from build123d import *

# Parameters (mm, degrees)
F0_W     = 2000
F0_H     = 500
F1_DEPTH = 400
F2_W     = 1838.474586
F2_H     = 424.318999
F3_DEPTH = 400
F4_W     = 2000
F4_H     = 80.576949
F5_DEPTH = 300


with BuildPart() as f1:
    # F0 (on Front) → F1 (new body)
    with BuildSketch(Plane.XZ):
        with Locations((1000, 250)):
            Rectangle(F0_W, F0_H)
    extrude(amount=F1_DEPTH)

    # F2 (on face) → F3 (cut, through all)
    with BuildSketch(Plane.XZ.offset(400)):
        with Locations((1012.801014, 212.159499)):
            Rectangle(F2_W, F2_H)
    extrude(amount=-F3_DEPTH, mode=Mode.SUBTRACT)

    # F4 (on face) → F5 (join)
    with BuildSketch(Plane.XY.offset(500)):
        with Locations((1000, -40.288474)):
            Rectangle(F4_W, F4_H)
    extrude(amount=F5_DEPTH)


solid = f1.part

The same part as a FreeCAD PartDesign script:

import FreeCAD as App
import Part
import Sketcher

V = App.Vector
Q = App.Units.Quantity


def add_polygon(sketch, points):
    """Adds a closed chain of lines whose ends are joined by coincident constraints."""
    first, n = sketch.GeometryCount, len(points)
    for a, b in zip(points, points[1:] + points[:1]):
        sketch.addGeometry(Part.LineSegment(App.Vector(*a, 0), App.Vector(*b, 0)), False)
    for i in range(n):
        sketch.addConstraint(Sketcher.Constraint("Coincident", first + i, 2, first + (i + 1) % n, 1))

doc = App.newDocument("Part")
params = doc.addObject("Spreadsheet::Sheet", "Params")
for row, (alias, value) in enumerate([
    ("sketch1_width", "2000 mm"),
    ("sketch1_height", "500 mm"),
    ("pad1_length", "400 mm"),
    ("sketch3_width", "2000 mm"),
    ("pad2_length", "300 mm"),
], start=1):
    params.set(f"A{row}", alias)
    params.set(f"B{row}", "=" + value)
    params.setAlias(f"B{row}", alias)

body = doc.addObject("PartDesign::Body", "Body")

sketch1 = body.newObject("Sketcher::SketchObject", "Sketch")
sketch1.AttachmentSupport = (doc.getObject("XZ_Plane"), [""])
sketch1.MapMode = "FlatFace"
add_polygon(sketch1, [(0, 500), (0, 0), (2000, 0), (2000, 500)])
sketch1.addConstraint([
    Sketcher.Constraint("Vertical", 0),
    Sketcher.Constraint("Horizontal", 1),
    Sketcher.Constraint("Vertical", 2),
    Sketcher.Constraint("Horizontal", 3),
    Sketcher.Constraint("Coincident", 0, 2, -1, 1),
    Sketcher.Constraint("DistanceX", 1, 1, 1, 2, Q("2000 mm")),
    Sketcher.Constraint("DistanceY", 0, 2, 0, 1, Q("500 mm")),
])
sketch1.setExpression("Constraints[9]", "Params.sketch1_width")
sketch1.setExpression("Constraints[10]", "Params.sketch1_height")
pad1 = body.newObject("PartDesign::Pad", "Pad")
pad1.Profile = sketch1
pad1.setExpression("Length", "Params.pad1_length")

sketch2 = body.newObject("Sketcher::SketchObject", "Sketch001")
sketch2.AttachmentSupport = (doc.getObject("XZ_Plane"), [""])
sketch2.MapMode = "FlatFace"
sketch2.AttachmentOffset = App.Placement(V(0, 0, 400), App.Rotation())
add_polygon(sketch2, [(94, 424), (94, 0), (1932, 0), (1932, 424)])
sketch2.addConstraint([
    Sketcher.Constraint("Vertical", 0),
    Sketcher.Constraint("Horizontal", 1),
    Sketcher.Constraint("Vertical", 2),
    Sketcher.Constraint("Horizontal", 3),
    Sketcher.Constraint("PointOnObject", 0, 2, -1),
    Sketcher.Constraint("DistanceY", 0, 2, 0, 1, Q("424.318999 mm")),
    Sketcher.Constraint("DistanceX", 1, 1, 1, 2, Q("1838.474586 mm")),
    Sketcher.Constraint("DistanceX", -1, 1, 0, 2, Q("93.563721 mm")),
])
pocket1 = body.newObject("PartDesign::Pocket", "Pocket")
pocket1.Profile = sketch2
pocket1.Type = "ThroughAll"

sketch3 = body.newObject("Sketcher::SketchObject", "Sketch002")
sketch3.AttachmentSupport = (doc.getObject("XY_Plane"), [""])
sketch3.MapMode = "FlatFace"
sketch3.AttachmentOffset = App.Placement(V(0, 0, 500), App.Rotation())
add_polygon(sketch3, [(0, 0), (0, -81), (2000, -81), (2000, 0)])
sketch3.addConstraint([
    Sketcher.Constraint("Vertical", 0),
    Sketcher.Constraint("Horizontal", 1),
    Sketcher.Constraint("Vertical", 2),
    Sketcher.Constraint("Horizontal", 3),
    Sketcher.Constraint("Coincident", 3, 2, -1, 1),
    Sketcher.Constraint("DistanceX", 1, 1, 1, 2, Q("2000 mm")),
    Sketcher.Constraint("DistanceY", 0, 2, 0, 1, Q("80.576949 mm")),
])
sketch3.setExpression("Constraints[9]", "Params.sketch3_width")
pad2 = body.newObject("PartDesign::Pad", "Pad001")
pad2.Profile = sketch3
pad2.setExpression("Length", "Params.pad2_length")

doc.recompute()
